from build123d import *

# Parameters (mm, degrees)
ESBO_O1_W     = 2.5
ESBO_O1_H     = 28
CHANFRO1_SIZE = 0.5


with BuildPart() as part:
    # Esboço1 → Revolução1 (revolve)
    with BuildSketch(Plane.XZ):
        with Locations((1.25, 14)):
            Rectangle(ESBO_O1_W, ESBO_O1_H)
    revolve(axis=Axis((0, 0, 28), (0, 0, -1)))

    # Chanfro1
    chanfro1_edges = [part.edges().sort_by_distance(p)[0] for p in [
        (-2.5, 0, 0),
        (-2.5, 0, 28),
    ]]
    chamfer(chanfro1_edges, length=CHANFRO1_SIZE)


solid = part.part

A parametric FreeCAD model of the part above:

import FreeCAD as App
import Part
import Sketcher
from FreeCAD import Vector


def edges_at(feature, points):
    """Names of the edges that pass closest to the given points."""
    edges = feature.Shape.Edges
    near = lambda p: min(range(len(edges)), key=lambda i: edges[i].distToShape(Part.Vertex(*p))[0])
    return sorted({f"Edge{near(p) + 1}" for p in points})

doc = App.newDocument("Part")
body = doc.addObject("PartDesign::Body", "Body")

# Sketch on XZ plane
sketch1 = body.newObject("Sketcher::SketchObject", "Sketch")
sketch1.AttachmentSupport = (doc.getObject("XZ_Plane"), [""])
sketch1.MapMode = "FlatFace"
sketch1.addGeometry([
    Part.LineSegment(Vector(0, 28, 0), Vector(0, 0, 0)),
    Part.LineSegment(Vector(0, 0, 0), Vector(2.5, 0, 0)),
    Part.LineSegment(Vector(2.5, 0, 0), Vector(2.5, 28, 0)),
    Part.LineSegment(Vector(2.5, 28, 0), Vector(0, 28, 0)),
], False)
sketch1.addConstraint([
    Sketcher.Constraint("Coincident", 0, 2, 1, 1),
    Sketcher.Constraint("Coincident", 1, 2, 2, 1),
    Sketcher.Constraint("Coincident", 2, 2, 3, 1),
    Sketcher.Constraint("Coincident", 3, 2, 0, 1),
    Sketcher.Constraint("Vertical", 0),
    Sketcher.Constraint("Horizontal", 1),
    Sketcher.Constraint("Vertical", 2),
    Sketcher.Constraint("Horizontal", 3),
    Sketcher.Constraint("Coincident", 0, 2, -1, 1),
    Sketcher.Constraint("DistanceY", 0, 2, 0, 1, 28.0),
    Sketcher.Constraint("DistanceX", 1, 1, 1, 2, 2.5),
])
revolution = body.newObject("PartDesign::Revolution", "Revolution")
revolution.Profile = sketch1
revolution.ReferenceAxis = (sketch1, ["V_Axis"])
revolution.Angle = 360
doc.recompute()

chamfer = body.newObject("PartDesign::Chamfer", "Chamfer")
chamfer.Base = (revolution, edges_at(revolution, [(-2.5, 0, 0), (-2.5, 0, 28)]))
chamfer.Size = 0.5

doc.recompute()
